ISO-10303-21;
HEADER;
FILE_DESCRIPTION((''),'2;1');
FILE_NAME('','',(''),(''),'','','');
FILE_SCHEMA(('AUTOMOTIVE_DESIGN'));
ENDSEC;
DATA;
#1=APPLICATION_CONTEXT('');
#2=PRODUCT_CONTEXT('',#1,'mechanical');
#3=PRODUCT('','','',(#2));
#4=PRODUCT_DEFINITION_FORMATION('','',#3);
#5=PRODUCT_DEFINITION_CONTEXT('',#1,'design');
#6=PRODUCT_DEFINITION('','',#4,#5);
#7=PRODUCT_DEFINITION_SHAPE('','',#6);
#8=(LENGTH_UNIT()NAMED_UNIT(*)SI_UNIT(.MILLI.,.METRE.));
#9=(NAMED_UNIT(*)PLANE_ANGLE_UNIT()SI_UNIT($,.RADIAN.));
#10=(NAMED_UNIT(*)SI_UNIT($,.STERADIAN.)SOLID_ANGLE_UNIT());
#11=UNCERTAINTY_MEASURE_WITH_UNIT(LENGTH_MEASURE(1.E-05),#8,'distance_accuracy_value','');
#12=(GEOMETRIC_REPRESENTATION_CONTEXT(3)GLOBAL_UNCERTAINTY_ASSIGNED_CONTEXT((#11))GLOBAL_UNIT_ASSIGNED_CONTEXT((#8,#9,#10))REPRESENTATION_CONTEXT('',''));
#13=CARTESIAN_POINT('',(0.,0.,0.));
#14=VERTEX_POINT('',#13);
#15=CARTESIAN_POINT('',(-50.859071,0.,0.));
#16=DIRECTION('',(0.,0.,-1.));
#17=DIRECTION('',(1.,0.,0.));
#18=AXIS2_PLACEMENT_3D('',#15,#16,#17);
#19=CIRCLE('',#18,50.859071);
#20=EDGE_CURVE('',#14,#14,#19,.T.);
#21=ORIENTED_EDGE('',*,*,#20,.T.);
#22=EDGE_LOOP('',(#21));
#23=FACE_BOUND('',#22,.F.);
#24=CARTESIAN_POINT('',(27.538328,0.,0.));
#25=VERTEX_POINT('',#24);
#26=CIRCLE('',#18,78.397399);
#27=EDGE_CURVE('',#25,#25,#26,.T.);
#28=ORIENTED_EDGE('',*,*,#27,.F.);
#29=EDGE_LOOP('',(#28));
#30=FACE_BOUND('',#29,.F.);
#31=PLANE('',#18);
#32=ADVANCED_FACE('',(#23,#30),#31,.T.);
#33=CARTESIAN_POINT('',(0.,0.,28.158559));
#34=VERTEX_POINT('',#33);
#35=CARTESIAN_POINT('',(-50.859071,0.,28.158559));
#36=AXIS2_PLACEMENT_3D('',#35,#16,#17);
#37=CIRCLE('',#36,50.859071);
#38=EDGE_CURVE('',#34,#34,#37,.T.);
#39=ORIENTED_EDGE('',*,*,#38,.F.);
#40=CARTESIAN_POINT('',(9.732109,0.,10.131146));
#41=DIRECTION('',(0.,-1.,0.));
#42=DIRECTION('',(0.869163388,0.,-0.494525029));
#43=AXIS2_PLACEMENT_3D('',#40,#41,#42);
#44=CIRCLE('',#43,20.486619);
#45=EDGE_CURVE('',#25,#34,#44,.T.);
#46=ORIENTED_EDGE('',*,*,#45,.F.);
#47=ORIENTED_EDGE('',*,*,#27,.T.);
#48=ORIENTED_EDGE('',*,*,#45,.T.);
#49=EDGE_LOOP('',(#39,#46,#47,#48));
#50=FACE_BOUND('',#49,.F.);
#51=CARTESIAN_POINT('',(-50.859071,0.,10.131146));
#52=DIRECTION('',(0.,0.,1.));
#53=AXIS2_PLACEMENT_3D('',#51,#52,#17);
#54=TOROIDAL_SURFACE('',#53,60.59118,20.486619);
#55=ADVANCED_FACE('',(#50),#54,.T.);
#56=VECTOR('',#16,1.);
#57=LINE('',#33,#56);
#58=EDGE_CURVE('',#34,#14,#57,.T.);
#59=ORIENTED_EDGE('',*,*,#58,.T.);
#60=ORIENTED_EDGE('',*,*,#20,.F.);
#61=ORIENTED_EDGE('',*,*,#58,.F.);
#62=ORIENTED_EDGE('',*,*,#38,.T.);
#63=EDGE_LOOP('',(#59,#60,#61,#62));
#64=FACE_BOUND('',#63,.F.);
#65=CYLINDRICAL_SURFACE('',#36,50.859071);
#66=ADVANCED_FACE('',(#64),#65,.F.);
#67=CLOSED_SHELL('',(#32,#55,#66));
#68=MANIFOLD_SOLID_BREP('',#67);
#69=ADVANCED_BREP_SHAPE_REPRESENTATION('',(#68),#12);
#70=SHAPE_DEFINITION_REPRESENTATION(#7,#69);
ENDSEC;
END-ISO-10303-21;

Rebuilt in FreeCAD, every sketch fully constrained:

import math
import FreeCAD as App
import Part
import Sketcher

doc = App.newDocument("Part")
params = doc.addObject("Spreadsheet::Sheet", "Params")
for row, (alias, value) in enumerate([
    ("revolution_angle", "360 deg"),
], start=1):
    params.set(f"A{row}", alias)
    params.set(f"B{row}", "=" + value)
    params.setAlias(f"B{row}", alias)

body = doc.addObject("PartDesign::Body", "Body")

# Sketch on XZ plane
sketch1 = doc.addObject("Sketcher::SketchObject", "Sketch")
body.addObject(sketch1)
sketch1.AttachmentSupport = (doc.XZ_Plane, [""])
sketch1.MapMode = "FlatFace"
sketch1.addGeometry(Part.ArcOfCircle(Part.Circle(App.Vector(9.732109, 10.131146, 0), App.Vector(0, 0, 1), 20.486619), math.radians(-29.638435), math.radians(118.362416)), False)
sketch1.addGeometry(Part.LineSegment(App.Vector(0, 28.158559, 0), App.Vector(0, 0, 0)), False)
sketch1.addGeometry(Part.LineSegment(App.Vector(0, 0, 0), App.Vector(27.538328, 0, 0)), False)
sketch1.addGeometry(Part.LineSegment(App.Vector(-50.859071, 28.158559, 0), App.Vector(-50.859071, 0, 0)), True)  # axis
sketch1.addConstraint(Sketcher.Constraint("Coincident", 0, 2, 1, 1))
sketch1.addConstraint(Sketcher.Constraint("Coincident", 1, 2, 2, 1))
sketch1.addConstraint(Sketcher.Constraint("Coincident", 2, 2, 0, 1))
sketch1.addConstraint(Sketcher.Constraint("Vertical", 1))
sketch1.addConstraint(Sketcher.Constraint("Horizontal", 2))
sketch1.addConstraint(Sketcher.Constraint("Vertical", 3))
sketch1.addConstraint(Sketcher.Constraint("Coincident", 1, 2, -1, 1))
sketch1.addConstraint(Sketcher.Constraint("PointOnObject", 3, 2, -1))
sketch1.addConstraint(Sketcher.Constraint("Horizontal", 0, 2, 3, 1))
sketch1.addConstraint(Sketcher.Constraint("Radius", 0, 20.486619))
sketch1.addConstraint(Sketcher.Constraint("DistanceX", 2, 1, 2, 2, 27.538328))
sketch1.addConstraint(Sketcher.Constraint("DistanceY", 1, 2, 1, 1, 28.158559))
sketch1.addConstraint(Sketcher.Constraint("DistanceX", 3, 1, 2, 2, 78.397399))
revolution = doc.addObject("PartDesign::Revolution", "Revolution")
body.addObject(revolution)
revolution.Profile = sketch1
revolution.ReferenceAxis = (sketch1, ["Axis0"])
revolution.setExpression("Angle", "Params.revolution_angle")

doc.recompute()
